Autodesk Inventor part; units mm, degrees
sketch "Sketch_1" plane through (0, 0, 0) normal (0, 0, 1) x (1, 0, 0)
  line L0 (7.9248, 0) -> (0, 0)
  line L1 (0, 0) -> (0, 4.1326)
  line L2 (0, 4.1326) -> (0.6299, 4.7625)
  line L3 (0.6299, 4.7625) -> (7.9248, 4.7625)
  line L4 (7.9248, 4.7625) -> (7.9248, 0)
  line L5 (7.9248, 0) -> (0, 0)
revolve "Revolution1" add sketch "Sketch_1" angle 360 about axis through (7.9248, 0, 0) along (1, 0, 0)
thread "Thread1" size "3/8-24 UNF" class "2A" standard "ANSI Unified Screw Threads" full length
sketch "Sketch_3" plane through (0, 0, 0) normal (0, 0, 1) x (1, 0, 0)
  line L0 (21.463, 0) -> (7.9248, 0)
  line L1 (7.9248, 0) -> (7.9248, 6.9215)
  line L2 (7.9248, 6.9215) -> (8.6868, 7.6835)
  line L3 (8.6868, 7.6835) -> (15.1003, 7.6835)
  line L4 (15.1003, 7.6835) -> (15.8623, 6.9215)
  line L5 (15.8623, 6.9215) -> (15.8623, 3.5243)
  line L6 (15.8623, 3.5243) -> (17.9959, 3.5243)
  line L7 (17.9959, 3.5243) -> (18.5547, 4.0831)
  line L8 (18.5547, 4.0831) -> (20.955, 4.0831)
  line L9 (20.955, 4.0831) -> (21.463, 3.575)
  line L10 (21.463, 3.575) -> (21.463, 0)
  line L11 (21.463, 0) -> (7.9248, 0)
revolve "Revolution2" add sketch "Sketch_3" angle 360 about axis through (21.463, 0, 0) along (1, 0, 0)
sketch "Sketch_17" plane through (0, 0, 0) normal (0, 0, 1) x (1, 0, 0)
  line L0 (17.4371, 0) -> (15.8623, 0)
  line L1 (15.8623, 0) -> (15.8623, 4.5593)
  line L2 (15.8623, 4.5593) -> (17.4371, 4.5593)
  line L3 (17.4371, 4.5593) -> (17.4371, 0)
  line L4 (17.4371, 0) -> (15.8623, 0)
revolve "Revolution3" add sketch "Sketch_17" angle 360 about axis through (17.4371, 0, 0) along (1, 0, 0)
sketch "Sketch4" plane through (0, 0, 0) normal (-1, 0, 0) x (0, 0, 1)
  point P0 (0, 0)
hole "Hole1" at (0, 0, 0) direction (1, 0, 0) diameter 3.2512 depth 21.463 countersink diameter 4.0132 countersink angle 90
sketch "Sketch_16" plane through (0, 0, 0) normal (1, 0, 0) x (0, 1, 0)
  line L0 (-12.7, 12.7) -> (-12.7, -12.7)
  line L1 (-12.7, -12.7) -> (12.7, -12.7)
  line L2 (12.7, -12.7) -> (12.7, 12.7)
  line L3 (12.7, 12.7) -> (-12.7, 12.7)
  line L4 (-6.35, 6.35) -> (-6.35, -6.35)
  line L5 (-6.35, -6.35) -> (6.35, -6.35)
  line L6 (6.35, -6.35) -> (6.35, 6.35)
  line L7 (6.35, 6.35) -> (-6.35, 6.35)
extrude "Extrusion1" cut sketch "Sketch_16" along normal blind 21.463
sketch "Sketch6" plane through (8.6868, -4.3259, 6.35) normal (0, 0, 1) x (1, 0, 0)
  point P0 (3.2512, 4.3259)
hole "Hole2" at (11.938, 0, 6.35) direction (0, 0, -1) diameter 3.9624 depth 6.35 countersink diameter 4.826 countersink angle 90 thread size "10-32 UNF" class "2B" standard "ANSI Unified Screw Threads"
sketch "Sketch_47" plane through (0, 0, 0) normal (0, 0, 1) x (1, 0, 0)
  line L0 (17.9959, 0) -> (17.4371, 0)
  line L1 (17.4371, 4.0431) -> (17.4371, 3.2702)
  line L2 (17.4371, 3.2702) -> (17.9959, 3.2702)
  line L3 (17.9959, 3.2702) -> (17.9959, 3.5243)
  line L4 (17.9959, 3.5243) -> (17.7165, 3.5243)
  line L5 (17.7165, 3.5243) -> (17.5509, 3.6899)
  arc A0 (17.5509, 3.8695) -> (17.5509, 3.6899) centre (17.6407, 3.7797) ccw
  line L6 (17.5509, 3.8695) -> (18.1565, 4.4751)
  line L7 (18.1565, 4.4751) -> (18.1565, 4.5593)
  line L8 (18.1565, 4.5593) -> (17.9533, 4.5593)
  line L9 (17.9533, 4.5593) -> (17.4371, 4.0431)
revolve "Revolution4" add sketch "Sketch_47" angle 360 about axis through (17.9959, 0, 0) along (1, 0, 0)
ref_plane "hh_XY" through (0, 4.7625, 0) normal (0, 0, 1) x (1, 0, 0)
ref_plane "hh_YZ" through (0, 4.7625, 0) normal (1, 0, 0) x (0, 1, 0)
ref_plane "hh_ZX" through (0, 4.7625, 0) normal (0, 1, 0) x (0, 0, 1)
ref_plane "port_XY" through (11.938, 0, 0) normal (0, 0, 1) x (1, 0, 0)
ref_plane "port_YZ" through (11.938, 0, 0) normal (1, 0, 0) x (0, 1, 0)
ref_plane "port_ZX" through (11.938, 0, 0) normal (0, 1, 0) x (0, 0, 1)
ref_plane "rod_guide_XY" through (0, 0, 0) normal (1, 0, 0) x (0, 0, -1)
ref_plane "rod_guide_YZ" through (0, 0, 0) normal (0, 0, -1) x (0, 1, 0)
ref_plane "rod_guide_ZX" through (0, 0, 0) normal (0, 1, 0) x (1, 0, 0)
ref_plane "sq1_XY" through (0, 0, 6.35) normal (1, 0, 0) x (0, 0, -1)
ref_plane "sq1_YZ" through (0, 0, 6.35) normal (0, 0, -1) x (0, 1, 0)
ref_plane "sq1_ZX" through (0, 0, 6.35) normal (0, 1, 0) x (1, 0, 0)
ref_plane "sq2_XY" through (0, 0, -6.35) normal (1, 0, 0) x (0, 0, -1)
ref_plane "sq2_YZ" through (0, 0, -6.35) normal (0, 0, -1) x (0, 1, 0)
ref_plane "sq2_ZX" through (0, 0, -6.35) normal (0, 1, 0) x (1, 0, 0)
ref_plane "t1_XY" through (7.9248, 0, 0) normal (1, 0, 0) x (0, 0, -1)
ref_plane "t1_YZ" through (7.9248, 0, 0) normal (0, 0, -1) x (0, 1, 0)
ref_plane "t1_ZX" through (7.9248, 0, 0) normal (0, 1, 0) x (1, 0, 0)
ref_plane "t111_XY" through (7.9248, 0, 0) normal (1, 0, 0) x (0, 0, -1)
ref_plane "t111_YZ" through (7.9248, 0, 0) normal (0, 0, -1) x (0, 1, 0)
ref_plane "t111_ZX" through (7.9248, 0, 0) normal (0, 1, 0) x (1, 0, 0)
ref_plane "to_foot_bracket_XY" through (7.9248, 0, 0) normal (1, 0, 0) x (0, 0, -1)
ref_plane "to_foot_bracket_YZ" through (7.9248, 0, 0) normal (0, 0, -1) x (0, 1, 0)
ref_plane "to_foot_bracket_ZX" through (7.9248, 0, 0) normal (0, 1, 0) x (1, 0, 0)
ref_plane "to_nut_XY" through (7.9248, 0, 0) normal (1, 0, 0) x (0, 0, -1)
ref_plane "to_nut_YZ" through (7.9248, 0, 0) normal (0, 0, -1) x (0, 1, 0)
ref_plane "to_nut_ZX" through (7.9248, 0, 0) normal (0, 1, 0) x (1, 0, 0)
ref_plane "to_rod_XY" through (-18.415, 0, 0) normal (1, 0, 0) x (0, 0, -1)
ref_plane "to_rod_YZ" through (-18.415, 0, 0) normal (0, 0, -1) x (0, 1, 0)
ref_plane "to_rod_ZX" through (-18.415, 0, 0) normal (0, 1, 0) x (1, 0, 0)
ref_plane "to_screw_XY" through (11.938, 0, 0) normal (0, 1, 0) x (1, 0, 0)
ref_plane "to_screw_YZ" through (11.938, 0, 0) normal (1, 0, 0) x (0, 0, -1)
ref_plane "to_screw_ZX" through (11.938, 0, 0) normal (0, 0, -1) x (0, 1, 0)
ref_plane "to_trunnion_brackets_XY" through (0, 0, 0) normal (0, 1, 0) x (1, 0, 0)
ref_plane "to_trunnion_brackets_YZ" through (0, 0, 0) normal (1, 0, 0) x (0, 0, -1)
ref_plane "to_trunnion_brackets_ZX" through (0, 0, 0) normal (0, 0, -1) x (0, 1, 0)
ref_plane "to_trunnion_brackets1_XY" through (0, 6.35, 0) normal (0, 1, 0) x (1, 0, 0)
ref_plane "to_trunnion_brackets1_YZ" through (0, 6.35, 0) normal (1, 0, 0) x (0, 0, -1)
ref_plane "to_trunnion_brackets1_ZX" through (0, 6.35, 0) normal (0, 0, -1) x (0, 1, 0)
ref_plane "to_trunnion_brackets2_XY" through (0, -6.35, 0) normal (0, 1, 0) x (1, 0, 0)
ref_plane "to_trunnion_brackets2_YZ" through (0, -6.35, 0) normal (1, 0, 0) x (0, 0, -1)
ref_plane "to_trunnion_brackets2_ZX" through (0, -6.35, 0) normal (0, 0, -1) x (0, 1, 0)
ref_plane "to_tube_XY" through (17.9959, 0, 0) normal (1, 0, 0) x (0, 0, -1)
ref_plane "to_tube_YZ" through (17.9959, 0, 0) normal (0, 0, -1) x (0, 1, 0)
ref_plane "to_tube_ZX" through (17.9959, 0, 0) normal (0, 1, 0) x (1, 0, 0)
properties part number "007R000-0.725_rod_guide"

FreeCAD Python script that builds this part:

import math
import FreeCAD as App
import Part
import Sketcher

V = App.Vector
Q = App.Units.Quantity


def add_polygon(sketch, points):
    """Adds a closed chain of lines whose ends are joined by coincident constraints."""
    first, n = sketch.GeometryCount, len(points)
    for a, b in zip(points, points[1:] + points[:1]):
        sketch.addGeometry(Part.LineSegment(App.Vector(*a, 0), App.Vector(*b, 0)), False)
    for i in range(n):
        sketch.addConstraint(Sketcher.Constraint("Coincident", first + i, 2, first + (i + 1) % n, 1))

doc = App.newDocument("Part")
body = doc.addObject("PartDesign::Body", "Body")

# Sketch on XY plane
sketch1 = body.newObject("Sketcher::SketchObject", "Sketch")
sketch1.AttachmentSupport = (doc.getObject("XY_Plane"), [""])
sketch1.MapMode = "FlatFace"
add_polygon(sketch1, [(0, 0), (7.9248, 0), (7.9248, 4.7625), (0.6299, 4.7625), (0, 4.1326)])  # lines 0-4
sketch1.addConstraint(Sketcher.Constraint("Horizontal", 0))
sketch1.addConstraint(Sketcher.Constraint("Vertical", 1))
sketch1.addConstraint(Sketcher.Constraint("Horizontal", 2))
sketch1.addConstraint(Sketcher.Constraint("Vertical", 4))
sketch1.addConstraint(Sketcher.Constraint("Coincident", 4, 2, -1, 1))
sketch1.addConstraint(Sketcher.Constraint("Angle", 3, Q("-135 deg")))
sketch1.addConstraint(Sketcher.Constraint("DistanceX", 0, 1, 0, 2, Q("0.312 in")))
sketch1.addConstraint(Sketcher.Constraint("DistanceY", 1, 1, 1, 2, Q("0.1875 in")))
sketch1.addConstraint(Sketcher.Constraint("DistanceX", 2, 2, 2, 1, Q("0.2872 in")))
revolution = body.newObject("PartDesign::Revolution", "Revolution")
revolution.Profile = sketch1
revolution.ReferenceAxis = (sketch1, ["H_Axis"])
revolution.Angle = 360

# Sketch on XY plane
sketch2 = body.newObject("Sketcher::SketchObject", "Sketch001")
sketch2.AttachmentSupport = (doc.getObject("XY_Plane"), [""])
sketch2.MapMode = "FlatFace"
add_polygon(sketch2, [(7.9248, 0), (21.463, 0), (21.463, 3.575), (20.955, 4.0831), (18.5547, 4.0831), (17.9959, 3.5243), (15.8623, 3.5243), (15.8623, 6.9215), (15.1003, 7.6835), (8.6868, 7.6835), (7.9248, 6.9215)])  # lines 0-10
sketch2.addConstraint(Sketcher.Constraint("Horizontal", 0))
sketch2.addConstraint(Sketcher.Constraint("Vertical", 1))
sketch2.addConstraint(Sketcher.Constraint("Horizontal", 3))
sketch2.addConstraint(Sketcher.Constraint("Horizontal", 5))
sketch2.addConstraint(Sketcher.Constraint("Vertical", 6))
sketch2.addConstraint(Sketcher.Constraint("Horizontal", 8))
sketch2.addConstraint(Sketcher.Constraint("Vertical", 10))
sketch2.addConstraint(Sketcher.Constraint("PointOnObject", 0, 2, -1))
sketch2.addConstraint(Sketcher.Constraint("Perpendicular", 2, 4))
sketch2.addConstraint(Sketcher.Constraint("Perpendicular", 4, 7))
sketch2.addConstraint(Sketcher.Constraint("Perpendicular", 7, 9))
sketch2.addConstraint(Sketcher.Constraint("Horizontal", 6, 2, 9, 2))
sketch2.addConstraint(Sketcher.Constraint("Equal", 7, 9))
sketch2.addConstraint(Sketcher.Constraint("DistanceX", 0, 1, 0, 2, Q("0.533 in")))
sketch2.addConstraint(Sketcher.Constraint("DistanceX", 5, 2, 5, 1, Q("0.084 in")))
sketch2.addConstraint(Sketcher.Constraint("DistanceX", 2, 2, 1, 2, Q("0.02 in")))
sketch2.addConstraint(Sketcher.Constraint("DistanceX", 7, 2, 6, 2, Q("0.03 in")))
sketch2.addConstraint(Sketcher.Constraint("DistanceX", 3, 2, 3, 1, Q("0.0945 in")))
sketch2.addConstraint(Sketcher.Constraint("DistanceX", 8, 2, 8, 1, Q("0.2525 in")))
sketch2.addConstraint(Sketcher.Constraint("DistanceY", 10, 2, 10, 1, Q("0.2725 in")))
sketch2.addConstraint(Sketcher.Constraint("DistanceX", -1, 1, 0, 2, Q("0.845 in")))
sketch2.addConstraint(Sketcher.Constraint("DistanceY", 1, 1, 1, 2, 3.575))
revolution2 = body.newObject("PartDesign::Revolution", "Revolution001")
revolution2.Profile = sketch2
revolution2.ReferenceAxis = (sketch2, ["H_Axis"])
revolution2.Angle = 360

# Sketch on XY plane
sketch3 = body.newObject("Sketcher::SketchObject", "Sketch002")
sketch3.AttachmentSupport = (doc.getObject("XY_Plane"), [""])
sketch3.MapMode = "FlatFace"
add_polygon(sketch3, [(15.8623, 0), (17.4371, 0), (17.4371, 4.5593), (15.8623, 4.5593)])  # lines 0-3
sketch3.addConstraint(Sketcher.Constraint("Horizontal", 0))
sketch3.addConstraint(Sketcher.Constraint("Vertical", 1))
sketch3.addConstraint(Sketcher.Constraint("Horizontal", 2))
sketch3.addConstraint(Sketcher.Constraint("Vertical", 3))
sketch3.addConstraint(Sketcher.Constraint("PointOnObject", 0, 2, -1))
sketch3.addConstraint(Sketcher.Constraint("DistanceX", 0, 1, 0, 2, Q("0.062 in")))
sketch3.addConstraint(Sketcher.Constraint("DistanceY", 1, 1, 1, 2, Q("0.1795 in")))
sketch3.addConstraint(Sketcher.Constraint("DistanceX", -1, 1, 0, 2, Q("0.6865 in")))
revolution3 = body.newObject("PartDesign::Revolution", "Revolution002")
revolution3.Profile = sketch3
revolution3.ReferenceAxis = (sketch3, ["H_Axis"])
revolution3.Angle = 360

# Sketch on YZ plane
sketch4 = body.newObject("Sketcher::SketchObject", "Sketch003")
sketch4.AttachmentSupport = (doc.getObject("YZ_Plane"), [""])
sketch4.MapMode = "FlatFace"
sketch4.addGeometry(Part.Circle(V(0, 0, 0), V(0, 0, 1), 1.6256), False)
sketch4.addConstraint(Sketcher.Constraint("Coincident", 0, 3, -1, 1))
sketch4.addConstraint(Sketcher.Constraint("Diameter", 0, Q("0.128 in")))
doc.recompute()
hole = body.newObject("PartDesign::Hole", "Hole")
hole.Profile = sketch4
hole.ThreadType = "None"
hole.Diameter = Q("0.128 in")
hole.DepthType = "Dimension"
hole.Depth = Q("0.845 in")
hole.DrillPoint = "Flat"
hole.HoleCutType = "Countersink"
hole.HoleCutDiameter = Q("0.158 in")
hole.HoleCutCountersinkAngle = 90
hole.Reversed = True

# Sketch on YZ plane
sketch5 = body.newObject("Sketcher::SketchObject", "Sketch004")
sketch5.AttachmentSupport = (doc.getObject("YZ_Plane"), [""])
sketch5.MapMode = "FlatFace"
add_polygon(sketch5, [(12.7, 12.7), (-12.7, 12.7), (-12.7, -12.7), (12.7, -12.7)])  # lines 0-3
add_polygon(sketch5, [(-6.35, -6.35), (-6.35, 6.35), (6.35, 6.35), (6.35, -6.35)])  # lines 4-7
sketch5.addConstraint(Sketcher.Constraint("Horizontal", 0))
sketch5.addConstraint(Sketcher.Constraint("Vertical", 1))
sketch5.addConstraint(Sketcher.Constraint("Horizontal", 2))
sketch5.addConstraint(Sketcher.Constraint("Vertical", 3))
sketch5.addConstraint(Sketcher.Constraint("Vertical", 4))
sketch5.addConstraint(Sketcher.Constraint("Horizontal", 5))
sketch5.addConstraint(Sketcher.Constraint("Vertical", 6))
sketch5.addConstraint(Sketcher.Constraint("Horizontal", 7))
sketch5.addConstraint(Sketcher.Constraint("Symmetric", 0, 2, 2, 2, -1, 1))
sketch5.addConstraint(Sketcher.Constraint("Symmetric", 4, 2, 6, 2, -1, 1))
sketch5.addConstraint(Sketcher.Constraint("Equal", 2, 1))
sketch5.addConstraint(Sketcher.Constraint("Equal", 7, 4))
sketch5.addConstraint(Sketcher.Constraint("DistanceX", 0, 2, 0, 1, Q("1 in")))
sketch5.addConstraint(Sketcher.Constraint("DistanceX", 5, 1, 5, 2, Q("0.5 in")))
pocket1 = body.newObject("PartDesign::Pocket", "Pocket")
pocket1.Profile = sketch5
pocket1.Length = Q("0.845 in")
pocket1.Reversed = True

# Sketch on XY plane
sketch6 = body.newObject("Sketcher::SketchObject", "Sketch005")
sketch6.AttachmentSupport = (doc.getObject("XY_Plane"), [""])
sketch6.MapMode = "FlatFace"
sketch6.AttachmentOffset = App.Placement(V(0, 0, 0.25 * 25.4), App.Rotation())
sketch6.addGeometry(Part.Circle(V(11.938, 0, 0), V(0, 0, 1), 1.9812), False)
sketch6.addConstraint(Sketcher.Constraint("PointOnObject", 0, 3, -1))
sketch6.addConstraint(Sketcher.Constraint("Diameter", 0, Q("0.156 in")))
sketch6.addConstraint(Sketcher.Constraint("DistanceX", -1, 1, 0, 3, Q("0.47 in")))
doc.recompute()
hole2 = body.newObject("PartDesign::Hole", "Hole001")
hole2.Profile = sketch6
hole2.ThreadType = "None"
hole2.Diameter = Q("0.156 in")
hole2.DepthType = "Dimension"
hole2.Depth = Q("0.25 in")
hole2.DrillPoint = "Flat"
hole2.HoleCutType = "Countersink"
hole2.HoleCutDiameter = Q("0.19 in")
hole2.HoleCutCountersinkAngle = 90

# Sketch on XY plane
sketch7 = body.newObject("Sketcher::SketchObject", "Sketch006")
sketch7.AttachmentSupport = (doc.getObject("XY_Plane"), [""])
sketch7.MapMode = "FlatFace"
sketch7.addGeometry(Part.LineSegment(V(17.9533, 4.5593, 0), V(17.4371, 4.0431, 0)), False)
sketch7.addGeometry(Part.LineSegment(V(17.4371, 4.0431, 0), V(17.4371, 3.2702, 0)), False)
sketch7.addGeometry(Part.LineSegment(V(17.4371, 3.2702, 0), V(17.9959, 3.2702, 0)), False)
sketch7.addGeometry(Part.LineSegment(V(17.9959, 3.2702, 0), V(17.9959, 3.5243, 0)), False)
sketch7.addGeometry(Part.LineSegment(V(17.9959, 3.5243, 0), V(17.7165, 3.5243, 0)), False)
sketch7.addGeometry(Part.LineSegment(V(17.7165, 3.5243, 0), V(17.5509, 3.6899, 0)), False)
sketch7.addGeometry(Part.ArcOfCircle(Part.Circle(V(17.6407, 3.7797, 0), V(0, 0, 1), 0.126996), math.radians(135), math.radians(225)), False)
sketch7.addGeometry(Part.LineSegment(V(17.5509, 3.8695, 0), V(18.1565, 4.4751, 0)), False)
sketch7.addGeometry(Part.LineSegment(V(18.1565, 4.4751, 0), V(18.1565, 4.5593, 0)), False)
sketch7.addGeometry(Part.LineSegment(V(18.1565, 4.5593, 0), V(17.9533, 4.5593, 0)), False)
sketch7.addConstraint(Sketcher.Constraint("Coincident", 0, 2, 1, 1))
sketch7.addConstraint(Sketcher.Constraint("Coincident", 1, 2, 2, 1))
sketch7.addConstraint(Sketcher.Constraint("Coincident", 2, 2, 3, 1))
sketch7.addConstraint(Sketcher.Constraint("Coincident", 3, 2, 4, 1))
sketch7.addConstraint(Sketcher.Constraint("Coincident", 4, 2, 5, 1))
sketch7.addConstraint(Sketcher.Constraint("Tangent", 5, 2, 6, 2))
sketch7.addConstraint(Sketcher.Constraint("Tangent", 6, 1, 7, 1))
sketch7.addConstraint(Sketcher.Constraint("Coincident", 7, 2, 8, 1))
sketch7.addConstraint(Sketcher.Constraint("Coincident", 8, 2, 9, 1))
sketch7.addConstraint(Sketcher.Constraint("Coincident", 9, 2, 0, 1))
sketch7.addConstraint(Sketcher.Constraint("Vertical", 1))
sketch7.addConstraint(Sketcher.Constraint("Horizontal", 2))
sketch7.addConstraint(Sketcher.Constraint("Vertical", 3))
sketch7.addConstraint(Sketcher.Constraint("Horizontal", 4))
sketch7.addConstraint(Sketcher.Constraint("Vertical", 8))
sketch7.addConstraint(Sketcher.Constraint("Horizontal", 9))
sketch7.addConstraint(Sketcher.Constraint("Perpendicular", 0, 5))
sketch7.addConstraint(Sketcher.Constraint("Perpendicular", 5, 7))
sketch7.addConstraint(Sketcher.Constraint("Vertical", 5, 2, 6, 1))
sketch7.addConstraint(Sketcher.Constraint("Radius", 6, Q("0.005 in")))
sketch7.addConstraint(Sketcher.Constraint("DistanceY", 3, 1, 3, 2, Q("0.01 in")))
sketch7.addConstraint(Sketcher.Constraint("DistanceX", 2, 1, 2, 2, Q("0.022 in")))
sketch7.addConstraint(Sketcher.Constraint("DistanceX", 4, 2, 4, 1, Q("0.011 in")))
sketch7.addConstraint(Sketcher.Constraint("DistanceX", 9, 2, 9, 1, Q("0.008 in")))
sketch7.addConstraint(Sketcher.Constraint("DistanceY", 0, 2, 7, 2, Q("0.017 in")))
sketch7.addConstraint(Sketcher.Constraint("DistanceY", 1, 2, 1, 1, 0.773))
sketch7.addConstraint(Sketcher.Constraint("DistanceY", 8, 1, 8, 2, 0.0842))
sketch7.addConstraint(Sketcher.Constraint("DistanceY", -1, 1, 6, 3, Q("0.1488 in")))
sketch7.addConstraint(Sketcher.Constraint("DistanceX", -1, 1, 0, 2, Q("0.6865 in")))
revolution4 = body.newObject("PartDesign::Revolution", "Revolution003")
revolution4.Profile = sketch7
revolution4.ReferenceAxis = (sketch7, ["H_Axis"])
revolution4.Angle = 360

doc.recompute()
